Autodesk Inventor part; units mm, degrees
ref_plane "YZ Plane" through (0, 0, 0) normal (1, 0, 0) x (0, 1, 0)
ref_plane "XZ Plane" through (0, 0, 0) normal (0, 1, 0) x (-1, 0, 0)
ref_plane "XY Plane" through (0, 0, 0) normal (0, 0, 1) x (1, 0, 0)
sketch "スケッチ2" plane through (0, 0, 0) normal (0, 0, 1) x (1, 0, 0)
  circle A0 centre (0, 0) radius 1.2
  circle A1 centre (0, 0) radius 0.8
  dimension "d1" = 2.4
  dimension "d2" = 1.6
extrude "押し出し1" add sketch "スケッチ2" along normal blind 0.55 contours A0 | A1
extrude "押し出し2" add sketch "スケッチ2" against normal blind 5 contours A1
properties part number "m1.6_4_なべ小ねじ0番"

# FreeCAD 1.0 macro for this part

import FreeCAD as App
import Part
import Sketcher

V = App.Vector

doc = App.newDocument("Part")
body = doc.addObject("PartDesign::Body", "Body")

sketch1 = doc.addObject("Sketcher::SketchObject", "Sketch")
body.addObject(sketch1)
sketch1.AttachmentSupport = (doc.XY_Plane, [""])
sketch1.MapMode = "FlatFace"
sketch1.addGeometry(Part.Circle(V(0, 0, 0), V(0, 0, 1), 1.2), False)
sketch1.addConstraint([
    Sketcher.Constraint("Coincident", 0, 3, -1, 1),
    Sketcher.Constraint("Diameter", 0, 2.4),
])
pad1 = doc.addObject("PartDesign::Pad", "Pad")
body.addObject(pad1)
pad1.Profile = sketch1
pad1.Length = 0.55

sketch2 = doc.addObject("Sketcher::SketchObject", "Sketch001")
body.addObject(sketch2)
sketch2.AttachmentSupport = (doc.XY_Plane, [""])
sketch2.MapMode = "FlatFace"
sketch2.addGeometry(Part.Circle(V(0, 0, 0), V(0, 0, 1), 0.8), False)
sketch2.addConstraint([
    Sketcher.Constraint("Coincident", 0, 3, -1, 1),
    Sketcher.Constraint("Diameter", 0, 1.6),
])
pad2 = doc.addObject("PartDesign::Pad", "Pad001")
body.addObject(pad2)
pad2.Profile = sketch2
pad2.Length = 5
pad2.Reversed = True

doc.recompute()
